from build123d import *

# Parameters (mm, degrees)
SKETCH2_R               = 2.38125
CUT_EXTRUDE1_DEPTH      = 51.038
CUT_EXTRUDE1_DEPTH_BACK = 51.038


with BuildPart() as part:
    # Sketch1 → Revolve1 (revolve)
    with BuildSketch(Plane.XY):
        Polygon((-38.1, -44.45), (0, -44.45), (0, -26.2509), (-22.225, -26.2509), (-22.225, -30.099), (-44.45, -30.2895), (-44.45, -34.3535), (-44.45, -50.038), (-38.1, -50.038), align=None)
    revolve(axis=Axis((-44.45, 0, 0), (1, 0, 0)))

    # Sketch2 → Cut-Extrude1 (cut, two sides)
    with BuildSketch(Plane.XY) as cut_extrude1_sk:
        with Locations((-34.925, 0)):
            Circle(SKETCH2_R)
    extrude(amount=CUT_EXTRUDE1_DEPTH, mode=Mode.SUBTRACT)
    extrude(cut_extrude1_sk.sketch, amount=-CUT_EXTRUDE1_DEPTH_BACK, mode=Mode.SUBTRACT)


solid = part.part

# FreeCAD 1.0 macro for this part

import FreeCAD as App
import Part
import Sketcher
Q = App.Units.Quantity


def add_polygon(sketch, points):
    """Adds a closed chain of lines whose ends are joined by coincident constraints."""
    first, n = sketch.GeometryCount, len(points)
    for a, b in zip(points, points[1:] + points[:1]):
        sketch.addGeometry(Part.LineSegment(App.Vector(*a, 0), App.Vector(*b, 0)), False)
    for i in range(n):
        sketch.addConstraint(Sketcher.Constraint("Coincident", first + i, 2, first + (i + 1) % n, 1))

doc = App.newDocument("Part")
params = doc.addObject("Spreadsheet::Sheet", "Params")
for row, (alias, value) in enumerate([
    ("sketch1_width", "1.5 in"),
    ("sketch1_width2", "0.25 in"),
    ("sketch1_height", "0.22 in"),
    ("sketch1_width3", "0.875 in"),
    ("revolution_angle", "360 deg"),
    ("sketch2_diameter", "0.1875 in"),
], start=1):
    params.set(f"A{row}", alias)
    params.set(f"B{row}", "=" + value)
    params.setAlias(f"B{row}", alias)

body = doc.addObject("PartDesign::Body", "Body")

# Sketch on XY plane
sketch1 = body.newObject("Sketcher::SketchObject", "Sketch")
sketch1.AttachmentSupport = (doc.getObject("XY_Plane"), [""])
sketch1.MapMode = "FlatFace"
add_polygon(sketch1, [(-38.1, -44.5), (0, -44.5), (0, -26.3), (-22.2, -26.3), (-22.2, -30.1), (-44.5, -30.3), (-44.5, -50), (-38.1, -50)])  # lines 0-7
sketch1.addConstraint(Sketcher.Constraint("Horizontal", 0))
sketch1.addConstraint(Sketcher.Constraint("Vertical", 1))
sketch1.addConstraint(Sketcher.Constraint("Horizontal", 2))
sketch1.addConstraint(Sketcher.Constraint("Vertical", 3))
sketch1.addConstraint(Sketcher.Constraint("Vertical", 5))
sketch1.addConstraint(Sketcher.Constraint("Horizontal", 6))
sketch1.addConstraint(Sketcher.Constraint("Vertical", 7))
sketch1.addConstraint(Sketcher.Constraint("PointOnObject", 0, 2, -2))
sketch1.addConstraint(Sketcher.Constraint("DistanceX", 0, 1, 0, 2, Q("1.5 in")))
sketch1.addConstraint(Sketcher.Constraint("DistanceX", 6, 1, 6, 2, Q("0.25 in")))
sketch1.addConstraint(Sketcher.Constraint("DistanceY", 7, 1, 7, 2, Q("0.22 in")))
sketch1.addConstraint(Sketcher.Constraint("DistanceX", 2, 2, 2, 1, Q("0.875 in")))
sketch1.addConstraint(Sketcher.Constraint("DistanceY", 0, 2, -1, 1, Q("1.75 in")))
sketch1.addConstraint(Sketcher.Constraint("DistanceY", 1, 1, 1, 2, Q("0.7165 in")))
sketch1.addConstraint(Sketcher.Constraint("DistanceY", 3, 2, 3, 1, Q("0.1515 in")))
sketch1.addConstraint(Sketcher.Constraint("DistanceY", 5, 2, 5, 1, Q("0.7775 in")))
sketch1.setExpression("Constraints[16]", "Params.sketch1_width")
sketch1.setExpression("Constraints[17]", "Params.sketch1_width2")
sketch1.setExpression("Constraints[18]", "Params.sketch1_height")
sketch1.setExpression("Constraints[19]", "Params.sketch1_width3")
revolution = body.newObject("PartDesign::Revolution", "Revolution")
revolution.Profile = sketch1
revolution.ReferenceAxis = (sketch1, ["H_Axis"])
revolution.setExpression("Angle", "Params.revolution_angle")

# Sketch on XY plane
sketch2 = body.newObject("Sketcher::SketchObject", "Sketch001")
sketch2.AttachmentSupport = (doc.getObject("XY_Plane"), [""])
sketch2.MapMode = "FlatFace"
sketch2.addGeometry(Part.Circle(App.Vector(-34.9, 0, 0), App.Vector(0, 0, 1), 2.4), False)
sketch2.addConstraint(Sketcher.Constraint("PointOnObject", 0, 3, -1))
sketch2.addConstraint(Sketcher.Constraint("Diameter", 0, Q("0.1875 in")))
sketch2.addConstraint(Sketcher.Constraint("DistanceX", 0, 3, -1, 1, Q("1.375 in")))
sketch2.setExpression("Constraints[1]", "Params.sketch2_diameter")
pocket1 = body.newObject("PartDesign::Pocket", "Pocket")
pocket1.Profile = sketch2
pocket1.Type = "ThroughAll"
pocket1.Midplane = True

doc.recompute()
